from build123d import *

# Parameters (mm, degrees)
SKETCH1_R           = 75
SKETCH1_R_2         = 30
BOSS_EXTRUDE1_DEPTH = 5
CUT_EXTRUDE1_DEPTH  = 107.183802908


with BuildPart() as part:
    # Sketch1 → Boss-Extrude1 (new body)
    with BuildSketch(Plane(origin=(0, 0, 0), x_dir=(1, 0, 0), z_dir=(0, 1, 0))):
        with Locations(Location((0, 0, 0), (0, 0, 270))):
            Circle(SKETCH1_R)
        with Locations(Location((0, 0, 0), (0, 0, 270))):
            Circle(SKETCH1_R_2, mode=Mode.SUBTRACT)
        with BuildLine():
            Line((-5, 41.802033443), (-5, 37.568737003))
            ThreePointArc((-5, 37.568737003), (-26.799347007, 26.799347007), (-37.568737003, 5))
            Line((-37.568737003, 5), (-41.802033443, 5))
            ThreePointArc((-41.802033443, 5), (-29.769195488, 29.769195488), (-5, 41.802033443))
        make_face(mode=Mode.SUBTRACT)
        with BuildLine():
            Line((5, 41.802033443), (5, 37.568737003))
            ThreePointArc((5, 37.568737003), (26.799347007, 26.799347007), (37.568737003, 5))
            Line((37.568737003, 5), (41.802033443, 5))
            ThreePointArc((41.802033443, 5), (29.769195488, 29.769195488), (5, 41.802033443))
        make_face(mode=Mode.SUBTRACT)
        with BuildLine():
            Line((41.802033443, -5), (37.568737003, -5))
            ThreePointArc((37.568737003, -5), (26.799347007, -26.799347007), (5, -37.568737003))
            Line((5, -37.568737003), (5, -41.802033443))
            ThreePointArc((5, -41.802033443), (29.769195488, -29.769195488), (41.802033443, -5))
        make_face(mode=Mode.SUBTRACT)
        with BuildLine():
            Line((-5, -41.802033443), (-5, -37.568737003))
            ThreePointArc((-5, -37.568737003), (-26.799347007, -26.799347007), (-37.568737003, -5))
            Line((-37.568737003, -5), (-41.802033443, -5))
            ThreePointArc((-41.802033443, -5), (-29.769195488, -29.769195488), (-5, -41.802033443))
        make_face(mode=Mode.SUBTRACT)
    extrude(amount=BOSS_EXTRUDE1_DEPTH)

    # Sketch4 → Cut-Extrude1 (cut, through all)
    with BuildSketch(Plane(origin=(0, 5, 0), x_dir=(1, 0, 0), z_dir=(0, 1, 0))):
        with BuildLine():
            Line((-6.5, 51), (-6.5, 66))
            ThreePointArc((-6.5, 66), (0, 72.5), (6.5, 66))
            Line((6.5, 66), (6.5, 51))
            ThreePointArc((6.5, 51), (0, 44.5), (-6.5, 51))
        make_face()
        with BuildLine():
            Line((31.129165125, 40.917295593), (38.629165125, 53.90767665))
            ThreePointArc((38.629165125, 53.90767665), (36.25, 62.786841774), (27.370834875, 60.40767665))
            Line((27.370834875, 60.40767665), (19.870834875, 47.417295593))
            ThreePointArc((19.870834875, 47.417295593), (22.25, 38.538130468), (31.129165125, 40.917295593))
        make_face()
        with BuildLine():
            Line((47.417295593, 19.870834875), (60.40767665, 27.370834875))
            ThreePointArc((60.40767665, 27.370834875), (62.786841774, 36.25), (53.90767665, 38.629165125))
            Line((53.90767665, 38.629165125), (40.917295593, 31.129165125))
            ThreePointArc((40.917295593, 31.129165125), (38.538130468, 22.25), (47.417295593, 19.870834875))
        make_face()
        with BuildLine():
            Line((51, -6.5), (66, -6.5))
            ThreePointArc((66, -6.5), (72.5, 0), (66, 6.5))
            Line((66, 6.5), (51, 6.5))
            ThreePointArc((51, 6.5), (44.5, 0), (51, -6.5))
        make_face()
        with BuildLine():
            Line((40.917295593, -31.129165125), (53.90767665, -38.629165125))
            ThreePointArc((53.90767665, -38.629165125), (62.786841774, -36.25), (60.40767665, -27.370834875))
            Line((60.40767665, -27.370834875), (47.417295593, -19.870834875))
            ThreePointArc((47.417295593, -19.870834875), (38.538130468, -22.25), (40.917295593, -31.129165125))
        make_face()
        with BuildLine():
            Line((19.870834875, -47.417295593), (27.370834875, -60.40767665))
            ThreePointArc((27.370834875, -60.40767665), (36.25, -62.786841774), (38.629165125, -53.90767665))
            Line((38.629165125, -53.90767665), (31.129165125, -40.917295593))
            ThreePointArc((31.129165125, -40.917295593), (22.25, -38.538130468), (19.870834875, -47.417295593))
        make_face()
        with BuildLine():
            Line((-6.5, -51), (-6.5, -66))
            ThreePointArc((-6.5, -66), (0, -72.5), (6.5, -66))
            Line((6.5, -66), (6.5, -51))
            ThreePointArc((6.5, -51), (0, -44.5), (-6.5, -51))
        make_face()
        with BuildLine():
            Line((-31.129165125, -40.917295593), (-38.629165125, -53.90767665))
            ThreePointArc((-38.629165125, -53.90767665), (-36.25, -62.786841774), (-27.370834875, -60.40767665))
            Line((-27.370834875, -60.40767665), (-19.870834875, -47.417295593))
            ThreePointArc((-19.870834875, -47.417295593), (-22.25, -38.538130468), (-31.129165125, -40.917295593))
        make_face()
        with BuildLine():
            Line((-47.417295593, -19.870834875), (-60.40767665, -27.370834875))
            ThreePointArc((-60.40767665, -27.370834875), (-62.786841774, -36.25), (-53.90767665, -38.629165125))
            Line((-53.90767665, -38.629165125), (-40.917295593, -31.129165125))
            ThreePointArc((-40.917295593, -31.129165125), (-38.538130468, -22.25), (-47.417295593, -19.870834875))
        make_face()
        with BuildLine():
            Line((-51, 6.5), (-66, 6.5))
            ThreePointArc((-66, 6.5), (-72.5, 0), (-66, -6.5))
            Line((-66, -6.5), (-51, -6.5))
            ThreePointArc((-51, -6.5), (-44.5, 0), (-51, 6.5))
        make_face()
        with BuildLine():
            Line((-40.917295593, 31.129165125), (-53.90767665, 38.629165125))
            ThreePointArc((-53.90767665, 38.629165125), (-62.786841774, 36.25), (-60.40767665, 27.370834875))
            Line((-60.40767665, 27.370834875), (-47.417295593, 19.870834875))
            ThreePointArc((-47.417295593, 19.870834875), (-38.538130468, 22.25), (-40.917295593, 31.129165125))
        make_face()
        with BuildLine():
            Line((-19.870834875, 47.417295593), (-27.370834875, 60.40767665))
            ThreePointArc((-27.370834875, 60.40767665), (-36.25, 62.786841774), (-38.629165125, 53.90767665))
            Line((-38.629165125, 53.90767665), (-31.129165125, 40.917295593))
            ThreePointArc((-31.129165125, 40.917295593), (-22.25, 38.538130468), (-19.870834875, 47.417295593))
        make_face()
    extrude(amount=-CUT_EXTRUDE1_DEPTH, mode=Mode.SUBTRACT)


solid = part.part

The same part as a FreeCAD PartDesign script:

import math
import FreeCAD as App
import Part
import Sketcher
Q = App.Units.Quantity

doc = App.newDocument("Part")
params = doc.addObject("Spreadsheet::Sheet", "Params")
for row, (alias, value) in enumerate([
    ("sketch1_diameter", "150 mm"),
    ("sketch1_diameter2", "60 mm"),
    ("sketch1_radius", "42.1 mm"),
    ("sketch1_radius2", "37.9 mm"),
    ("pad1_length", "5 mm"),
    ("sketch2_radius", "6.5 mm"),
    ("sketch2_width", "15 mm"),
    ("sketch2_length", "15 mm"),
], start=1):
    params.set(f"A{row}", alias)
    params.set(f"B{row}", "=" + value)
    params.setAlias(f"B{row}", alias)

body = doc.addObject("PartDesign::Body", "Body")

sketch1 = doc.addObject("Sketcher::SketchObject", "Sketch")
body.addObject(sketch1)
sketch1.AttachmentSupport = (doc.XZ_Plane, [""])
sketch1.MapMode = "FlatFace"
sketch1.addGeometry([
    Part.Circle(App.Vector(0, 0, 0), App.Vector(0, 0, 1), 75),
    Part.ArcOfCircle(Part.Circle(App.Vector(0, 0, 0), App.Vector(0, 0, 1), 42.1), math.radians(-173), math.radians(-97)),
    Part.LineSegment(App.Vector(-5, -41.8, 0), App.Vector(-5, -37.6, 0)),
    Part.ArcOfCircle(Part.Circle(App.Vector(0, 0, 0), App.Vector(0, 0, 1), 37.9), math.radians(-172), math.radians(-98)),
    Part.LineSegment(App.Vector(-37.6, -5, 0), App.Vector(-41.8, -5, 0)),
    Part.LineSegment(App.Vector(-5, 37.6, 0), App.Vector(-5, 41.8, 0)),
    Part.ArcOfCircle(Part.Circle(App.Vector(0, 0, 0), App.Vector(0, 0, 1), 42.1), math.radians(97), math.radians(173)),
    Part.LineSegment(App.Vector(-41.8, 5, 0), App.Vector(-37.6, 5, 0)),
    Part.ArcOfCircle(Part.Circle(App.Vector(0, 0, 0), App.Vector(0, 0, 1), 37.9), math.radians(98), math.radians(172)),
    Part.LineSegment(App.Vector(5, -37.6, 0), App.Vector(5, -41.8, 0)),
    Part.ArcOfCircle(Part.Circle(App.Vector(0, 0, 0), App.Vector(0, 0, 1), 42.1), math.radians(-83), math.radians(-7)),
    Part.LineSegment(App.Vector(41.8, -5, 0), App.Vector(37.6, -5, 0)),
    Part.ArcOfCircle(Part.Circle(App.Vector(0, 0, 0), App.Vector(0, 0, 1), 37.9), math.radians(-82), math.radians(-8)),
    Part.Circle(App.Vector(0, 0, 0), App.Vector(0, 0, 1), 30),
    Part.LineSegment(App.Vector(37.6, 5, 0), App.Vector(41.8, 5, 0)),
    Part.ArcOfCircle(Part.Circle(App.Vector(0, 0, 0), App.Vector(0, 0, 1), 42.1), math.radians(7), math.radians(83)),
    Part.LineSegment(App.Vector(5, 41.8, 0), App.Vector(5, 37.6, 0)),
    Part.ArcOfCircle(Part.Circle(App.Vector(0, 0, 0), App.Vector(0, 0, 1), 37.9), math.radians(8), math.radians(82)),
], False)
sketch1.addConstraint([
    Sketcher.Constraint("Coincident", 1, 2, 2, 1),
    Sketcher.Constraint("Coincident", 2, 2, 3, 2),
    Sketcher.Constraint("Coincident", 3, 1, 4, 1),
    Sketcher.Constraint("Coincident", 4, 2, 1, 1),
    Sketcher.Constraint("Coincident", 5, 2, 6, 1),
    Sketcher.Constraint("Coincident", 6, 2, 7, 1),
    Sketcher.Constraint("Coincident", 7, 2, 8, 2),
    Sketcher.Constraint("Coincident", 8, 1, 5, 1),
    Sketcher.Constraint("Coincident", 9, 2, 10, 1),
    Sketcher.Constraint("Coincident", 10, 2, 11, 1),
    Sketcher.Constraint("Coincident", 11, 2, 12, 2),
    Sketcher.Constraint("Coincident", 12, 1, 9, 1),
    Sketcher.Constraint("Coincident", 14, 2, 15, 1),
    Sketcher.Constraint("Coincident", 15, 2, 16, 1),
    Sketcher.Constraint("Coincident", 16, 2, 17, 2),
    Sketcher.Constraint("Coincident", 17, 1, 14, 1),
    Sketcher.Constraint("Vertical", 2),
    Sketcher.Constraint("Horizontal", 4),
    Sketcher.Constraint("Vertical", 5),
    Sketcher.Constraint("Horizontal", 7),
    Sketcher.Constraint("Vertical", 9),
    Sketcher.Constraint("Horizontal", 11),
    Sketcher.Constraint("Horizontal", 14),
    Sketcher.Constraint("Vertical", 16),
    Sketcher.Constraint("Coincident", 0, 3, -1, 1),
    Sketcher.Constraint("Coincident", 1, 3, -1, 1),
    Sketcher.Constraint("Coincident", 3, 3, -1, 1),
    Sketcher.Constraint("Coincident", 6, 3, -1, 1),
    Sketcher.Constraint("Coincident", 8, 3, -1, 1),
    Sketcher.Constraint("Coincident", 10, 3, -1, 1),
    Sketcher.Constraint("Coincident", 12, 3, -1, 1),
    Sketcher.Constraint("Coincident", 13, 3, -1, 1),
    Sketcher.Constraint("Coincident", 15, 3, -1, 1),
    Sketcher.Constraint("Coincident", 17, 3, -1, 1),
    Sketcher.Constraint("Equal", 1, 6),
    Sketcher.Constraint("Equal", 3, 8),
    Sketcher.Constraint("Equal", 6, 10),
    Sketcher.Constraint("Equal", 8, 12),
    Sketcher.Constraint("Equal", 10, 15),
    Sketcher.Constraint("Equal", 12, 17),
    Sketcher.Constraint("Horizontal", 1, 2, 9, 2),
    Sketcher.Constraint("Horizontal", 4, 2, 10, 2),
    Sketcher.Constraint("Horizontal", 7, 2, 14, 2),
    Sketcher.Constraint("Horizontal", 5, 2, 15, 2),
    Sketcher.Constraint("Vertical", 2, 2, 5, 2),
    Sketcher.Constraint("Vertical", 4, 2, 6, 2),
    Sketcher.Constraint("Equal", 14, 2),
    Sketcher.Constraint("Diameter", 0, Q("150 mm")),
    Sketcher.Constraint("Diameter", 13, Q("60 mm")),
    Sketcher.Constraint("Radius", 1, Q("42.1 mm")),
    Sketcher.Constraint("Radius", 3, Q("37.9 mm")),
    Sketcher.Constraint("DistanceX", 1, 2, -1, 1, Q("5 mm")),
])
sketch1.setExpression("Constraints[47]", "Params.sketch1_diameter")
sketch1.setExpression("Constraints[48]", "Params.sketch1_diameter2")
sketch1.setExpression("Constraints[49]", "Params.sketch1_radius")
sketch1.setExpression("Constraints[50]", "Params.sketch1_radius2")
pad1 = doc.addObject("PartDesign::Pad", "Pad")
body.addObject(pad1)
pad1.Profile = sketch1
pad1.setExpression("Length", "Params.pad1_length")
pad1.Reversed = True

sketch2 = doc.addObject("Sketcher::SketchObject", "Sketch001")
body.addObject(sketch2)
sketch2.AttachmentSupport = (doc.XZ_Plane, [""])
sketch2.MapMode = "FlatFace"
sketch2.AttachmentOffset = App.Placement(App.Vector(0, 0, -5), App.Rotation())
sketch2.addGeometry([
    Part.LineSegment(App.Vector(-6, -66, 0), App.Vector(-6, -51, 0)),
    Part.ArcOfCircle(Part.Circle(App.Vector(0, -51, 0), App.Vector(0, 0, 1), 6), math.radians(0), math.radians(180)),
    Part.LineSegment(App.Vector(6, -51, 0), App.Vector(6, -66, 0)),
    Part.ArcOfCircle(Part.Circle(App.Vector(0, -66, 0), App.Vector(0, 0, 1), 6), math.radians(180), math.radians(360)),
    Part.LineSegment(App.Vector(31, -41, 0), App.Vector(39, -54, 0)),
    Part.ArcOfCircle(Part.Circle(App.Vector(33, -57, 0), App.Vector(0, 0, 1), 6), math.radians(-150), math.radians(30)),
    Part.LineSegment(App.Vector(27, -60, 0), App.Vector(20, -47, 0)),
    Part.ArcOfCircle(Part.Circle(App.Vector(26, -44, 0), App.Vector(0, 0, 1), 6), math.radians(30), math.radians(210)),
    Part.LineSegment(App.Vector(47, -20, 0), App.Vector(60, -27, 0)),
    Part.ArcOfCircle(Part.Circle(App.Vector(57, -33, 0), App.Vector(0, 0, 1), 6), math.radians(-120), math.radians(60)),
    Part.LineSegment(App.Vector(54, -39, 0), App.Vector(41, -31, 0)),
    Part.ArcOfCircle(Part.Circle(App.Vector(44, -26, 0), App.Vector(0, 0, 1), 6), math.radians(60), math.radians(240)),
    Part.LineSegment(App.Vector(51, 6, 0), App.Vector(66, 6, 0)),
    Part.ArcOfCircle(Part.Circle(App.Vector(66, 0, 0), App.Vector(0, 0, 1), 6), math.radians(-90), math.radians(90)),
    Part.LineSegment(App.Vector(66, -6, 0), App.Vector(51, -6, 0)),
    Part.ArcOfCircle(Part.Circle(App.Vector(51, 0, 0), App.Vector(0, 0, 1), 6), math.radians(90), math.radians(270)),
    Part.LineSegment(App.Vector(41, 31, 0), App.Vector(54, 39, 0)),
    Part.ArcOfCircle(Part.Circle(App.Vector(57, 33, 0), App.Vector(0, 0, 1), 6), math.radians(-60), math.radians(120)),
    Part.LineSegment(App.Vector(60, 27, 0), App.Vector(47, 20, 0)),
    Part.ArcOfCircle(Part.Circle(App.Vector(44, 26, 0), App.Vector(0, 0, 1), 6), math.radians(120), math.radians(300)),
    Part.LineSegment(App.Vector(20, 47, 0), App.Vector(27, 60, 0)),
    Part.ArcOfCircle(Part.Circle(App.Vector(33, 57, 0), App.Vector(0, 0, 1), 6), math.radians(-30), math.radians(150)),
    Part.LineSegment(App.Vector(39, 54, 0), App.Vector(31, 41, 0)),
    Part.ArcOfCircle(Part.Circle(App.Vector(26, 44, 0), App.Vector(0, 0, 1), 6), math.radians(150), math.radians(330)),
    Part.LineSegment(App.Vector(-6, 51, 0), App.Vector(-6, 66, 0)),
    Part.ArcOfCircle(Part.Circle(App.Vector(0, 66, 0), App.Vector(0, 0, 1), 6), math.radians(0), math.radians(180)),
    Part.LineSegment(App.Vector(6, 66, 0), App.Vector(6, 51, 0)),
    Part.ArcOfCircle(Part.Circle(App.Vector(0, 51, 0), App.Vector(0, 0, 1), 6), math.radians(180), math.radians(360)),
    Part.LineSegment(App.Vector(-31, 41, 0), App.Vector(-39, 54, 0)),
    Part.ArcOfCircle(Part.Circle(App.Vector(-33, 57, 0), App.Vector(0, 0, 1), 6), math.radians(30), math.radians(210)),
    Part.LineSegment(App.Vector(-27, 60, 0), App.Vector(-20, 47, 0)),
    Part.ArcOfCircle(Part.Circle(App.Vector(-26, 44, 0), App.Vector(0, 0, 1), 6), math.radians(-150), math.radians(30)),
    Part.LineSegment(App.Vector(-47, 20, 0), App.Vector(-60, 27, 0)),
    Part.ArcOfCircle(Part.Circle(App.Vector(-57, 33, 0), App.Vector(0, 0, 1), 6), math.radians(60), math.radians(240)),
    Part.LineSegment(App.Vector(-54, 39, 0), App.Vector(-41, 31, 0)),
    Part.ArcOfCircle(Part.Circle(App.Vector(-44, 26, 0), App.Vector(0, 0, 1), 6), math.radians(-120), math.radians(60)),
    Part.LineSegment(App.Vector(-51, -6, 0), App.Vector(-66, -6, 0)),
    Part.ArcOfCircle(Part.Circle(App.Vector(-66, 0, 0), App.Vector(0, 0, 1), 6), math.radians(90), math.radians(270)),
    Part.LineSegment(App.Vector(-66, 6, 0), App.Vector(-51, 6, 0)),
    Part.ArcOfCircle(Part.Circle(App.Vector(-51, 0, 0), App.Vector(0, 0, 1), 6), math.radians(-90), math.radians(90)),
    Part.LineSegment(App.Vector(-41, -31, 0), App.Vector(-54, -39, 0)),
    Part.ArcOfCircle(Part.Circle(App.Vector(-57, -33, 0), App.Vector(0, 0, 1), 6), math.radians(120), math.radians(300)),
    Part.LineSegment(App.Vector(-60, -27, 0), App.Vector(-47, -20, 0)),
    Part.ArcOfCircle(Part.Circle(App.Vector(-44, -26, 0), App.Vector(0, 0, 1), 6), math.radians(-60), math.radians(120)),
    Part.LineSegment(App.Vector(-20, -47, 0), App.Vector(-27, -60, 0)),
    Part.ArcOfCircle(Part.Circle(App.Vector(-33, -57, 0), App.Vector(0, 0, 1), 6), math.radians(150), math.radians(330)),
    Part.LineSegment(App.Vector(-39, -54, 0), App.Vector(-31, -41, 0)),
    Part.ArcOfCircle(Part.Circle(App.Vector(-26, -44, 0), App.Vector(0, 0, 1), 6), math.radians(-30), math.radians(150)),
], False)
sketch2.addConstraint([
    Sketcher.Constraint("Tangent", 0, 2, 1, 2),
    Sketcher.Constraint("Tangent", 1, 1, 2, 1),
    Sketcher.Constraint("Tangent", 2, 2, 3, 2),
    Sketcher.Constraint("Tangent", 3, 1, 0, 1),
    Sketcher.Constraint("Tangent", 4, 2, 5, 2),
    Sketcher.Constraint("Tangent", 5, 1, 6, 1),
    Sketcher.Constraint("Tangent", 6, 2, 7, 2),
    Sketcher.Constraint("Tangent", 7, 1, 4, 1),
    Sketcher.Constraint("Tangent", 8, 2, 9, 2),
    Sketcher.Constraint("Tangent", 9, 1, 10, 1),
    Sketcher.Constraint("Tangent", 10, 2, 11, 2),
    Sketcher.Constraint("Tangent", 11, 1, 8, 1),
    Sketcher.Constraint("Tangent", 12, 2, 13, 2),
    Sketcher.Constraint("Tangent", 13, 1, 14, 1),
    Sketcher.Constraint("Tangent", 14, 2, 15, 2),
    Sketcher.Constraint("Tangent", 15, 1, 12, 1),
    Sketcher.Constraint("Tangent", 16, 2, 17, 2),
    Sketcher.Constraint("Tangent", 17, 1, 18, 1),
    Sketcher.Constraint("Tangent", 18, 2, 19, 2),
    Sketcher.Constraint("Tangent", 19, 1, 16, 1),
    Sketcher.Constraint("Tangent", 20, 2, 21, 2),
    Sketcher.Constraint("Tangent", 21, 1, 22, 1),
    Sketcher.Constraint("Tangent", 22, 2, 23, 2),
    Sketcher.Constraint("Tangent", 23, 1, 20, 1),
    Sketcher.Constraint("Tangent", 24, 2, 25, 2),
    Sketcher.Constraint("Tangent", 25, 1, 26, 1),
    Sketcher.Constraint("Tangent", 26, 2, 27, 2),
    Sketcher.Constraint("Tangent", 27, 1, 24, 1),
    Sketcher.Constraint("Tangent", 28, 2, 29, 2),
    Sketcher.Constraint("Tangent", 29, 1, 30, 1),
    Sketcher.Constraint("Tangent", 30, 2, 31, 2),
    Sketcher.Constraint("Tangent", 31, 1, 28, 1),
    Sketcher.Constraint("Tangent", 32, 2, 33, 2),
    Sketcher.Constraint("Tangent", 33, 1, 34, 1),
    Sketcher.Constraint("Tangent", 34, 2, 35, 2),
    Sketcher.Constraint("Tangent", 35, 1, 32, 1),
    Sketcher.Constraint("Tangent", 36, 2, 37, 2),
    Sketcher.Constraint("Tangent", 37, 1, 38, 1),
    Sketcher.Constraint("Tangent", 38, 2, 39, 2),
    Sketcher.Constraint("Tangent", 39, 1, 36, 1),
    Sketcher.Constraint("Tangent", 40, 2, 41, 2),
    Sketcher.Constraint("Tangent", 41, 1, 42, 1),
    Sketcher.Constraint("Tangent", 42, 2, 43, 2),
    Sketcher.Constraint("Tangent", 43, 1, 40, 1),
    Sketcher.Constraint("Tangent", 44, 2, 45, 2),
    Sketcher.Constraint("Tangent", 45, 1, 46, 1),
    Sketcher.Constraint("Tangent", 46, 2, 47, 2),
    Sketcher.Constraint("Tangent", 47, 1, 44, 1),
    Sketcher.Constraint("Vertical", 0),
    Sketcher.Constraint("Vertical", 2),
    Sketcher.Constraint("Horizontal", 12),
    Sketcher.Constraint("Horizontal", 14),
    Sketcher.Constraint("Vertical", 24),
    Sketcher.Constraint("Vertical", 26),
    Sketcher.Constraint("Horizontal", 36),
    Sketcher.Constraint("Horizontal", 38),
    Sketcher.Constraint("Equal", 3, 5),
    Sketcher.Constraint("Equal", 5, 7),
    Sketcher.Constraint("Equal", 7, 9),
    Sketcher.Constraint("Equal", 9, 11),
    Sketcher.Constraint("Equal", 11, 13),
    Sketcher.Constraint("Equal", 15, 17),
    Sketcher.Constraint("Equal", 17, 19),
    Sketcher.Constraint("Equal", 19, 21),
    Sketcher.Constraint("Equal", 21, 23),
    Sketcher.Constraint("Equal", 23, 25),
    Sketcher.Constraint("Equal", 27, 29),
    Sketcher.Constraint("Equal", 29, 31),
    Sketcher.Constraint("Equal", 31, 33),
    Sketcher.Constraint("Equal", 33, 35),
    Sketcher.Constraint("Equal", 35, 37),
    Sketcher.Constraint("Equal", 39, 41),
    Sketcher.Constraint("Equal", 41, 43),
    Sketcher.Constraint("Equal", 43, 45),
    Sketcher.Constraint("Equal", 45, 47),
    Sketcher.Constraint("Symmetric", 3, 3, 25, 3, -1, 1),
    Sketcher.Constraint("Symmetric", 5, 3, 29, 3, -1, 1),
    Sketcher.Constraint("Symmetric", 7, 3, 31, 3, -1, 1),
    Sketcher.Constraint("Symmetric", 9, 3, 33, 3, -1, 1),
    Sketcher.Constraint("Symmetric", 11, 3, 35, 3, -1, 1),
    Sketcher.Constraint("Symmetric", 13, 3, 37, 3, -1, 1),
    Sketcher.Constraint("Symmetric", 17, 3, 41, 3, -1, 1),
    Sketcher.Constraint("Symmetric", 19, 3, 43, 3, -1, 1),
    Sketcher.Constraint("Symmetric", 21, 3, 45, 3, -1, 1),
    Sketcher.Constraint("Symmetric", 23, 3, 47, 3, -1, 1),
    Sketcher.Constraint("Symmetric", 21, 3, 29, 3, -2),
    Sketcher.Constraint("Symmetric", 23, 3, 31, 3, -2),
    Sketcher.Constraint("Symmetric", 17, 3, 33, 3, -2),
    Sketcher.Constraint("Symmetric", 19, 3, 35, 3, -2),
    Sketcher.Constraint("Symmetric", 15, 3, 39, 3, -2),
    Sketcher.Constraint("Symmetric", 1, 3, 27, 3, -1),
    Sketcher.Constraint("Perpendicular", 6, 16),
    Sketcher.Constraint("Equal", 38, 0),
    Sketcher.Constraint("Equal", 6, 8),
    Sketcher.Constraint("Radius", 1, Q("6.5 mm")),
    Sketcher.Constraint("DistanceX", 12, 1, 12, 2, Q("15 mm")),
    Sketcher.Constraint("Angle", 4, Q("-60 deg")),
    Sketcher.Constraint("Distance", 4, Q("15 mm")),
    Sketcher.Constraint("DistanceY", 1, 3, -1, 1, Q("51 mm")),
    Sketcher.Constraint("DistanceX", -1, 1, 5, 3, Q("33 mm")),
    Sketcher.Constraint("DistanceY", 9, 3, -1, 1, Q("33 mm")),
    Sketcher.Constraint("DistanceX", -1, 1, 13, 3, Q("66 mm")),
    Sketcher.Constraint("DistanceY", 5, 3, -1, 1, Q("57.157677 mm")),
    Sketcher.Constraint("DistanceX", -1, 1, 9, 3, Q("57.157677 mm")),
])
sketch2.setExpression("Constraints[94]", "Params.sketch2_radius")
sketch2.setExpression("Constraints[95]", "Params.sketch2_width")
sketch2.setExpression("Constraints[97]", "Params.sketch2_length")
pocket1 = doc.addObject("PartDesign::Pocket", "Pocket")
body.addObject(pocket1)
pocket1.Profile = sketch2
pocket1.Type = "ThroughAll"
pocket1.Reversed = True

doc.recompute()
